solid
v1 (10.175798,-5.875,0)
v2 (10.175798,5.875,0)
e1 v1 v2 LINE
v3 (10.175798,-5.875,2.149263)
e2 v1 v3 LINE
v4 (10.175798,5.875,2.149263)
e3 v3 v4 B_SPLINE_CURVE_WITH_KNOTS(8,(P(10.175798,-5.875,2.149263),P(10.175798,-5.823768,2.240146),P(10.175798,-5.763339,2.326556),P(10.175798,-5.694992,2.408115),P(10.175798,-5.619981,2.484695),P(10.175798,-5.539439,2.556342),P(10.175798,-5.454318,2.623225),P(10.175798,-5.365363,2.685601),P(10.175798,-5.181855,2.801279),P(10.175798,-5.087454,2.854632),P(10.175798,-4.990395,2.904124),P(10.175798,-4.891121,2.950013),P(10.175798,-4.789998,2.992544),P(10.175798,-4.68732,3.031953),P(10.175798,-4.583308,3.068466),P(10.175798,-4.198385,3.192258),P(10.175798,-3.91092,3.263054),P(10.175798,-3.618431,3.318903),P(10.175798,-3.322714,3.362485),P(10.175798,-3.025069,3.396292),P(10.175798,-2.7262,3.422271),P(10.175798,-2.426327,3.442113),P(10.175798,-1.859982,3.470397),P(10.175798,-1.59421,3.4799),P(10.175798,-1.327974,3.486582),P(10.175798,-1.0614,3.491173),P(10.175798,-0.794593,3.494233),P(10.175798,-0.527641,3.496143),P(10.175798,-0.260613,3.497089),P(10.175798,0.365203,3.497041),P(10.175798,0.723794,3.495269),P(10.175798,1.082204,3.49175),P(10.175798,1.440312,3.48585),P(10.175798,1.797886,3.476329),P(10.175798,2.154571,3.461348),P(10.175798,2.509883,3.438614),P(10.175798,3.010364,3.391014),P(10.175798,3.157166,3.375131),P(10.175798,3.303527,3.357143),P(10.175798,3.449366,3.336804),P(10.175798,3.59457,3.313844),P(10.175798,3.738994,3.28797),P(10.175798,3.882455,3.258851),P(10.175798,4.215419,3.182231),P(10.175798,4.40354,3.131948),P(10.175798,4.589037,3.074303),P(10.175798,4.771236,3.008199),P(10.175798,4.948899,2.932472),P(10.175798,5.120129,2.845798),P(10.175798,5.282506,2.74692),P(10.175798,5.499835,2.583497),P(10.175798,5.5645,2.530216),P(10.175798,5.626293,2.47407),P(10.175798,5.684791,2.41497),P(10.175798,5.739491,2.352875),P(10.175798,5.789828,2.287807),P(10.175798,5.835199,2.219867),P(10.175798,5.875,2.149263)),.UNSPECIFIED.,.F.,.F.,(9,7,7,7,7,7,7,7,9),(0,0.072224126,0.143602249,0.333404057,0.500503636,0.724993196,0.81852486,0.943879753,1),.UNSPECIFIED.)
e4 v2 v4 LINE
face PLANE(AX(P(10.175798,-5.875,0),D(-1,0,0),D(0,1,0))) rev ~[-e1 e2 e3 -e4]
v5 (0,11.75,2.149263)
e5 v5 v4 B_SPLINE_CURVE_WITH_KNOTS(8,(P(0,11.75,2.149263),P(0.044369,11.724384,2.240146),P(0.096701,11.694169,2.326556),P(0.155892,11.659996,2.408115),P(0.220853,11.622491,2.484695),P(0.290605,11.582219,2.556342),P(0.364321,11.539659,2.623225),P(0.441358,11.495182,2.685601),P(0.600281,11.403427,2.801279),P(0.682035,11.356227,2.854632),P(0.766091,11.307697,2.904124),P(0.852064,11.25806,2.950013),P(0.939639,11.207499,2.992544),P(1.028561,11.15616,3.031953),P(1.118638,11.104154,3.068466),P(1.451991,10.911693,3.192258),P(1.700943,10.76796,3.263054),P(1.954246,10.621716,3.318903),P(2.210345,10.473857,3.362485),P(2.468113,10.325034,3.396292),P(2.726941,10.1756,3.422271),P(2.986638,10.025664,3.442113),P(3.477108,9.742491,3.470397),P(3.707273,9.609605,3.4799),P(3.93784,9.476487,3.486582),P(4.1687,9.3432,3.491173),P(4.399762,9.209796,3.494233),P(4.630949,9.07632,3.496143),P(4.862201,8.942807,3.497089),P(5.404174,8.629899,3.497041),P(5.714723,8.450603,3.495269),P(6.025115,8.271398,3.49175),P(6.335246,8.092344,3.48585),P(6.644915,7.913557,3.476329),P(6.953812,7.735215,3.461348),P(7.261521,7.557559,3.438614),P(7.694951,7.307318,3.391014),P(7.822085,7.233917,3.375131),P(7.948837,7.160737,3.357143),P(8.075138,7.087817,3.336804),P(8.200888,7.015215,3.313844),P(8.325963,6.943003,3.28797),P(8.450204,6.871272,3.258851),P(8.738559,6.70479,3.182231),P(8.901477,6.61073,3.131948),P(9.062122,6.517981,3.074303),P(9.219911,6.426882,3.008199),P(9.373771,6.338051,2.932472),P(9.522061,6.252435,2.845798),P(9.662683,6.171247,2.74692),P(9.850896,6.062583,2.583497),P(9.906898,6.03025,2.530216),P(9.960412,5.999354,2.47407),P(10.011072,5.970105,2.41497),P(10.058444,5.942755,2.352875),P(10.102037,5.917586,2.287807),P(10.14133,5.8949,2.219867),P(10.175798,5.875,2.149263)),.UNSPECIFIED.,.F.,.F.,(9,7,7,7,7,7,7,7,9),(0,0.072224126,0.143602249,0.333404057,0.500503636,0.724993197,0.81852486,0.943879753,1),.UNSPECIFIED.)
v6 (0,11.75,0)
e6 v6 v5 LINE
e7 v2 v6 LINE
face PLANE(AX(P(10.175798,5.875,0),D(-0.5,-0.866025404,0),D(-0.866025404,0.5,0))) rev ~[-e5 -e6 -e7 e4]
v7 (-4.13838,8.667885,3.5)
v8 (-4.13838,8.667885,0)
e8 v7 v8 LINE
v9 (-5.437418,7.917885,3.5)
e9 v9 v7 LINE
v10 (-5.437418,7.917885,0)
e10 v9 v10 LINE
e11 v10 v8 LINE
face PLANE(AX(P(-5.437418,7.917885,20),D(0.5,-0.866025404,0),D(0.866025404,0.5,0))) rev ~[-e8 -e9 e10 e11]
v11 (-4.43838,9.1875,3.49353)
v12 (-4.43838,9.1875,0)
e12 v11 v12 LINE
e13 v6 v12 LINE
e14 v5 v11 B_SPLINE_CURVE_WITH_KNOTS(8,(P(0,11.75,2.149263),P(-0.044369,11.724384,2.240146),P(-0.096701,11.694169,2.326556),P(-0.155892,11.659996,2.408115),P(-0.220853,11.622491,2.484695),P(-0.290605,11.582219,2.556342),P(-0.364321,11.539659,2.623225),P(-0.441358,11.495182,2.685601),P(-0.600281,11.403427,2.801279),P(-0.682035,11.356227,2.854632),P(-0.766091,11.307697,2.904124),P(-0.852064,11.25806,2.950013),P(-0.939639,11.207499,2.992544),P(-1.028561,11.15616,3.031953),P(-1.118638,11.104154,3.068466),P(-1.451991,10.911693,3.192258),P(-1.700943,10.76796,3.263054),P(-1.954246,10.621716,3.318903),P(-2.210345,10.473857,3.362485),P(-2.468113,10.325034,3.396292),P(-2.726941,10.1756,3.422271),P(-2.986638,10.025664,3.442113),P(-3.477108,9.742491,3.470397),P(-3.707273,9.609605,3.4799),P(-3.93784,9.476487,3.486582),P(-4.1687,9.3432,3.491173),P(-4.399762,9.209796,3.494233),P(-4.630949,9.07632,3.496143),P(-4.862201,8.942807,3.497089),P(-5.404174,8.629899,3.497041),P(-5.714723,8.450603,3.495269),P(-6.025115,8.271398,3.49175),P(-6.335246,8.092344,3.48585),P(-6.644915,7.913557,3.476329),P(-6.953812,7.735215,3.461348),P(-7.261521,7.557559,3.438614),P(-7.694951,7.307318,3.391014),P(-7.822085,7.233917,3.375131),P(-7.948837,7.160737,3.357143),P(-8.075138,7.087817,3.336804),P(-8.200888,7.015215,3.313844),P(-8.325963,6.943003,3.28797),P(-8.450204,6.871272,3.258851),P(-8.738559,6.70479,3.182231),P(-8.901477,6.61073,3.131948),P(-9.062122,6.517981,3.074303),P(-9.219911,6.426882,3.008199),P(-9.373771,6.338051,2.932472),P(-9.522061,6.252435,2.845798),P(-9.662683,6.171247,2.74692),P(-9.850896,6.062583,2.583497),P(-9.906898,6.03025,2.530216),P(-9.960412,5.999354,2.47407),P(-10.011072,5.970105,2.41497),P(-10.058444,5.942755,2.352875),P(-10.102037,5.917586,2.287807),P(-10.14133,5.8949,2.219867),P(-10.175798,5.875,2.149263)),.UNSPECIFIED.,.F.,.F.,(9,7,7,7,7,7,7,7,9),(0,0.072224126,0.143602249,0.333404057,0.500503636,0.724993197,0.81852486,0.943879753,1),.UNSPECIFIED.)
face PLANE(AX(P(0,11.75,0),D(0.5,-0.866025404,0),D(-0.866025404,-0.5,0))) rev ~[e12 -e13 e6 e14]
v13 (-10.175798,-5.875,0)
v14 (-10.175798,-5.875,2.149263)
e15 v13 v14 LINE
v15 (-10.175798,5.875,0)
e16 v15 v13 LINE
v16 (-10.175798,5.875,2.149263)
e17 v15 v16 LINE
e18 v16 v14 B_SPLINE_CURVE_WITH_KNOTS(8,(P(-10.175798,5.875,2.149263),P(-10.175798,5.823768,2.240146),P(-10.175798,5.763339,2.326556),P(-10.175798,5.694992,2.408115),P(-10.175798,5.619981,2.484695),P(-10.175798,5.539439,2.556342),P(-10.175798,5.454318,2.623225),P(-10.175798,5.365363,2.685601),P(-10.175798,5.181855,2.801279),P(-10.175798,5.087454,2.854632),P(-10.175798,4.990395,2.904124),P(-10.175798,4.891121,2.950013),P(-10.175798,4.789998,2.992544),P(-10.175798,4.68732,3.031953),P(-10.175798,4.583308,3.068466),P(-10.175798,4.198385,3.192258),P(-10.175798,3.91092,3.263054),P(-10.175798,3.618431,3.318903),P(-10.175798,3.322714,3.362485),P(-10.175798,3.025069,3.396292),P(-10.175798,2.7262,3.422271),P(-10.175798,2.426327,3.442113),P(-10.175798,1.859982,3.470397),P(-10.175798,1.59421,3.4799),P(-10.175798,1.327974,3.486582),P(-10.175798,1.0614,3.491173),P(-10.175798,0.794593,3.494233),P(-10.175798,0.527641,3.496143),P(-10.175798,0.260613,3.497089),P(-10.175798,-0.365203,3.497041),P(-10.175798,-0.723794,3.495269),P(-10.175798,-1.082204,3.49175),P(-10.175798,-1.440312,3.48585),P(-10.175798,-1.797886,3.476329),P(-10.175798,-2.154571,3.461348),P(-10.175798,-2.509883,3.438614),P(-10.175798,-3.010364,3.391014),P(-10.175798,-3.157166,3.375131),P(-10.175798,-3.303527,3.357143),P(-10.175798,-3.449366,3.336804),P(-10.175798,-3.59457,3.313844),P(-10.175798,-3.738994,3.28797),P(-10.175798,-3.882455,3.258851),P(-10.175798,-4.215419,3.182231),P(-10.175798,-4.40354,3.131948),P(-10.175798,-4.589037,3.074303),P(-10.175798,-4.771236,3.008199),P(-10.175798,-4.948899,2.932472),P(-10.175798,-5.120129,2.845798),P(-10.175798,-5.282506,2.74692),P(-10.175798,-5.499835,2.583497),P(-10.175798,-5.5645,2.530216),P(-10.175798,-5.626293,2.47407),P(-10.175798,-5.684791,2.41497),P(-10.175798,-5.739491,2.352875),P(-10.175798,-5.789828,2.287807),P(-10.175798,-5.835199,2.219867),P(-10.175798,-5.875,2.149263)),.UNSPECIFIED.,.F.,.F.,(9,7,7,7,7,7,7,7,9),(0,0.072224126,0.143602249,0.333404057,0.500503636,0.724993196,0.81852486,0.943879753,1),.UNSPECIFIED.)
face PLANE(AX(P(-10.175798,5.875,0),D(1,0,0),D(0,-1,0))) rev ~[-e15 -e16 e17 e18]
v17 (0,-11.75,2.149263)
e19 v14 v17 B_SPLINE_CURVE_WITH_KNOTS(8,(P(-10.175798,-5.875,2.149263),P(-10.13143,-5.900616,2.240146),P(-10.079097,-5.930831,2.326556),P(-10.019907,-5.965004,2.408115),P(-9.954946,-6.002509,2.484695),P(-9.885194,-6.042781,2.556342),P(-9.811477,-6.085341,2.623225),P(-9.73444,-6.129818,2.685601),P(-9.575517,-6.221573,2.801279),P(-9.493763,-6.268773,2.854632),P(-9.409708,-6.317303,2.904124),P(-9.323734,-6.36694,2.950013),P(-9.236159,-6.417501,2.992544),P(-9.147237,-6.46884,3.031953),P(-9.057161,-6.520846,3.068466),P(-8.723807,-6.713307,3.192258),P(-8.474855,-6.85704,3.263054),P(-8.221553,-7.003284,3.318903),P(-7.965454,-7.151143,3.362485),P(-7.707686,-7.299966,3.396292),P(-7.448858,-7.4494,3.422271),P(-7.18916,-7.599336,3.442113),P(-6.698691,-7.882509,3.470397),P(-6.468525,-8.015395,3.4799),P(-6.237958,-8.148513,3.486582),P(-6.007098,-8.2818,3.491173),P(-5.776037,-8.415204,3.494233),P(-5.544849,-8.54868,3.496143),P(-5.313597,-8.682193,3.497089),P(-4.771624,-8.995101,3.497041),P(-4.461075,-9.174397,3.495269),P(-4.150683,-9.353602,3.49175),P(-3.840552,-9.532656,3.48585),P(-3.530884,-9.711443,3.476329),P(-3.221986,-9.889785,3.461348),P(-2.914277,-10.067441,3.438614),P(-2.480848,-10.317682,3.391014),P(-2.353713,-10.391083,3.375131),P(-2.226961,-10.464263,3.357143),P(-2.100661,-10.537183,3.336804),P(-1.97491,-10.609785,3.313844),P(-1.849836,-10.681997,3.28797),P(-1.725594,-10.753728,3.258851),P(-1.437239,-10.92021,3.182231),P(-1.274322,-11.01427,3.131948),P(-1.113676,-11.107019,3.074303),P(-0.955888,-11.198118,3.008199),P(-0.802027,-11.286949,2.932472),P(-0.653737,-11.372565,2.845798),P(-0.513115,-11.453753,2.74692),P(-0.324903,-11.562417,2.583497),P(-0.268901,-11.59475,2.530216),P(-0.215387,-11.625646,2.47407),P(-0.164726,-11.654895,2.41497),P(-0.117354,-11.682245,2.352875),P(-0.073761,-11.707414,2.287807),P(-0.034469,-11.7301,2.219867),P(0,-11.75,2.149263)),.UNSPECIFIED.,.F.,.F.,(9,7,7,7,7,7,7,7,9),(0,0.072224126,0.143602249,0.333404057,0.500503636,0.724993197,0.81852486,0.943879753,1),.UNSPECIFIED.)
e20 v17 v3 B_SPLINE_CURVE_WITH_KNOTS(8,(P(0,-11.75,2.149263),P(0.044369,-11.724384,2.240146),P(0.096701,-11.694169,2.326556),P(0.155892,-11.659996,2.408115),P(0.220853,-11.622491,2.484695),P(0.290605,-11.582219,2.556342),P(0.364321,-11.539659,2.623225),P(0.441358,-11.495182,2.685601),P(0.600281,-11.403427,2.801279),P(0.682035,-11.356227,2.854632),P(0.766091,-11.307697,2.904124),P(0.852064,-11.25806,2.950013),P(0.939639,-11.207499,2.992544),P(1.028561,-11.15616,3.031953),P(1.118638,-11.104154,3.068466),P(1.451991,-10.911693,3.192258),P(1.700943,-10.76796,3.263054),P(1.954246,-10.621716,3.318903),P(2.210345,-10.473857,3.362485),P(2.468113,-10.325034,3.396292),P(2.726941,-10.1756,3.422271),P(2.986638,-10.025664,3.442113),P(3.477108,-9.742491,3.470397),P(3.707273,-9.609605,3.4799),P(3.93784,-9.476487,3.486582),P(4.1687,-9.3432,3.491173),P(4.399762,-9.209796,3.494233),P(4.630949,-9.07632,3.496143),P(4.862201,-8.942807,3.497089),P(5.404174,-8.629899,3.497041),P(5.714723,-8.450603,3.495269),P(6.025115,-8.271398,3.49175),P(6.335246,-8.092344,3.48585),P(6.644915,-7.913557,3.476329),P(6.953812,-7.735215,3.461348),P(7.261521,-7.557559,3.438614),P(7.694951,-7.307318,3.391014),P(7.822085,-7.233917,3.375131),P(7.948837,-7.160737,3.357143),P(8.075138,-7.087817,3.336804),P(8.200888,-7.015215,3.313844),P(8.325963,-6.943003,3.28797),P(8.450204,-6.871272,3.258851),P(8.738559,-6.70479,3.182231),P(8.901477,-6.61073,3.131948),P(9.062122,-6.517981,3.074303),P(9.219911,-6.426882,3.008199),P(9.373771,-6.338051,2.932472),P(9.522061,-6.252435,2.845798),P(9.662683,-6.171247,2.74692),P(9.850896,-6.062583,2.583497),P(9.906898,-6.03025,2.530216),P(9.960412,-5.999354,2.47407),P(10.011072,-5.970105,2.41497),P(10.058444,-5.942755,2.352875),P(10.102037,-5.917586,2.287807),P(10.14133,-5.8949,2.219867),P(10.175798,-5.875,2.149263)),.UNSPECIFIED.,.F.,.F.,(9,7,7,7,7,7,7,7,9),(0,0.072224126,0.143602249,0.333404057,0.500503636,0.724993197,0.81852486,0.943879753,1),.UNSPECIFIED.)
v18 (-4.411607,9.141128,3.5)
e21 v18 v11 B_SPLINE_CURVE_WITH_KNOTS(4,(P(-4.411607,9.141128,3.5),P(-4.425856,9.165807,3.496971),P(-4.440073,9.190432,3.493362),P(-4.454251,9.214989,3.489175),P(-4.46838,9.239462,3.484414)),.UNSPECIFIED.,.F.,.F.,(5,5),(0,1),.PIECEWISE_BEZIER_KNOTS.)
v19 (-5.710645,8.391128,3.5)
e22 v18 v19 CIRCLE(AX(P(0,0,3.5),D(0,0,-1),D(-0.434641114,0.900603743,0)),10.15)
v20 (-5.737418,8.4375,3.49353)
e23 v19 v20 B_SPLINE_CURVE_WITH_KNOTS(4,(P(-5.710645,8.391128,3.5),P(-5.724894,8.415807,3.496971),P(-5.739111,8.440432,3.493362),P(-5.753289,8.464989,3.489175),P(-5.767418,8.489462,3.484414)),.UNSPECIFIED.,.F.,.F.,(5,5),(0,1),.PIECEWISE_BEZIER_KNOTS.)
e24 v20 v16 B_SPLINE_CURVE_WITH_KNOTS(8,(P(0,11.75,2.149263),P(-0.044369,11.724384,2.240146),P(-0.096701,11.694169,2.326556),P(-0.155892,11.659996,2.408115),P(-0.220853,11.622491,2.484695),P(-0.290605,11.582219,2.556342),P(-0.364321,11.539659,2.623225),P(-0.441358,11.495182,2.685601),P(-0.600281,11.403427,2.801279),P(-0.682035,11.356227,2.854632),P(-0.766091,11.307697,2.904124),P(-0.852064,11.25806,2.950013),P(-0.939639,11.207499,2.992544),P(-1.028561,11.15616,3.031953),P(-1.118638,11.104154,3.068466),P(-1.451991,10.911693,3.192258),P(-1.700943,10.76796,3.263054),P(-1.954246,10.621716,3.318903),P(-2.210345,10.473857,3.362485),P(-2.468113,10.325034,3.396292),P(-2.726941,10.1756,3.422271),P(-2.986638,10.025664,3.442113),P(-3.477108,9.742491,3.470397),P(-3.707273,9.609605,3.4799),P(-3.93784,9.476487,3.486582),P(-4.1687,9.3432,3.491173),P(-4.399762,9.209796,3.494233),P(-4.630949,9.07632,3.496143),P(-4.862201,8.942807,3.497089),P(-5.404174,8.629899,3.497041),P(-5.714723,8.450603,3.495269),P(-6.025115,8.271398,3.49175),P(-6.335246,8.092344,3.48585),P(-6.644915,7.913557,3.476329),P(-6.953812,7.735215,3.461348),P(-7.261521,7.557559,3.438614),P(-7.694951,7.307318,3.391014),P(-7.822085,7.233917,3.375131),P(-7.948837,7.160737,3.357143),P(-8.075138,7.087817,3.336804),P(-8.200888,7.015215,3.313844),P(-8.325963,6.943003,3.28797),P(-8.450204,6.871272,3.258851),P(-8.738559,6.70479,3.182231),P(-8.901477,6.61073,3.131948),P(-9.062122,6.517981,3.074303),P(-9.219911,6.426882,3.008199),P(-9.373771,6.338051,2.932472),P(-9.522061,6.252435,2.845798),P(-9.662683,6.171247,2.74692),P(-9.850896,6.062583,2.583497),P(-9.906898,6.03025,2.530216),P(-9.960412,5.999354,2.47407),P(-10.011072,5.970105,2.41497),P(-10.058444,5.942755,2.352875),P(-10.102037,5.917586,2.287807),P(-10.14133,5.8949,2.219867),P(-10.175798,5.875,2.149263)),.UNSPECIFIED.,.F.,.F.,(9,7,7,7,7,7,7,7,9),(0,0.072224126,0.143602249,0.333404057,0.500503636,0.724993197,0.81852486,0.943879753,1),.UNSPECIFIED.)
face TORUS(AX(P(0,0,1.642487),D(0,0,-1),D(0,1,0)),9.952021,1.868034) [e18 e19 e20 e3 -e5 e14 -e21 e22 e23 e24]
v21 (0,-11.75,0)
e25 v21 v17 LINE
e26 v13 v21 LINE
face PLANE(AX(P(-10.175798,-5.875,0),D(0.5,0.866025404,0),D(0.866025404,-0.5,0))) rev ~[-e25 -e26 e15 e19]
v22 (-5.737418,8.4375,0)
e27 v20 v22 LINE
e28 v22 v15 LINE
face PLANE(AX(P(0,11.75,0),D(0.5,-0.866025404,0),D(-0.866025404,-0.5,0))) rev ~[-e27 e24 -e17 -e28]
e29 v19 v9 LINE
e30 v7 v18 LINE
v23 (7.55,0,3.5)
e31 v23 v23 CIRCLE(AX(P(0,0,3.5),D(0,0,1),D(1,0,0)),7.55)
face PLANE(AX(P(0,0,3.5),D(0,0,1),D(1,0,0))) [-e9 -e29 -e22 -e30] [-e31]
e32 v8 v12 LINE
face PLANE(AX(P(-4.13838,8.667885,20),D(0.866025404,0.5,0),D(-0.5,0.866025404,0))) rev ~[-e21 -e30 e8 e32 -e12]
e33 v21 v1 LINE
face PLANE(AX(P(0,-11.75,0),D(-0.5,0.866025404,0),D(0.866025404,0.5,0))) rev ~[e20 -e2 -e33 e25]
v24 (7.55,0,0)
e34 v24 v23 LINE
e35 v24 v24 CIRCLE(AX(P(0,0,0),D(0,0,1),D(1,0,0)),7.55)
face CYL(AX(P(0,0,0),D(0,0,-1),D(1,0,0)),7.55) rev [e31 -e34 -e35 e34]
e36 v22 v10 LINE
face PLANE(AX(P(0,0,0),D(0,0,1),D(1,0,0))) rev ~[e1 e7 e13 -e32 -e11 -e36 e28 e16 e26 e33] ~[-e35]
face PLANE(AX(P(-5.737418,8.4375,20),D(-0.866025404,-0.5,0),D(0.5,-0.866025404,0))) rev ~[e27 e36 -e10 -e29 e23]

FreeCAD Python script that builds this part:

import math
import FreeCAD as App
import Part
import Sketcher

V = App.Vector
Q = App.Units.Quantity

doc = App.newDocument("Part")
body = doc.addObject("PartDesign::Body", "Body")

# Sketch on XY plane
sketch1 = body.newObject("Sketcher::SketchObject", "Sketch")
sketch1.AttachmentSupport = (doc.getObject("XY_Plane"), [""])
sketch1.MapMode = "FlatFace"
sketch1.addGeometry(Part.LineSegment(V(0, 12, 0), V(-10, 6, 0)), False)
sketch1.addGeometry(Part.LineSegment(V(-10, 6, 0), V(-10, -6, 0)), False)
sketch1.addGeometry(Part.LineSegment(V(-10, -6, 0), V(0, -12, 0)), False)
sketch1.addGeometry(Part.LineSegment(V(0, -12, 0), V(10, -6, 0)), False)
sketch1.addGeometry(Part.LineSegment(V(10, -6, 0), V(10, 6, 0)), False)
sketch1.addGeometry(Part.LineSegment(V(10, 6, 0), V(0, 12, 0)), False)
sketch1.addGeometry(Part.Circle(V(0, 0, 0), V(0, 0, 1), 8), False)
sketch1.addConstraint(Sketcher.Constraint("Coincident", 0, 2, 1, 1))
sketch1.addConstraint(Sketcher.Constraint("Coincident", 1, 2, 2, 1))
sketch1.addConstraint(Sketcher.Constraint("Coincident", 2, 2, 3, 1))
sketch1.addConstraint(Sketcher.Constraint("Coincident", 3, 2, 4, 1))
sketch1.addConstraint(Sketcher.Constraint("Coincident", 4, 2, 5, 1))
sketch1.addConstraint(Sketcher.Constraint("Coincident", 5, 2, 0, 1))
sketch1.addConstraint(Sketcher.Constraint("Vertical", 1))
sketch1.addConstraint(Sketcher.Constraint("Vertical", 4))
sketch1.addConstraint(Sketcher.Constraint("Coincident", 6, 3, -1, 1))
sketch1.addConstraint(Sketcher.Constraint("Symmetric", 0, 2, 3, 2, -1, 1))
sketch1.addConstraint(Sketcher.Constraint("Symmetric", 2, 2, 5, 2, -1, 1))
sketch1.addConstraint(Sketcher.Constraint("PointOnObject", 2, 2, -2))
sketch1.addConstraint(Sketcher.Constraint("Parallel", 2, 5))
sketch1.addConstraint(Sketcher.Constraint("Horizontal", 1, 2, 3, 2))
sketch1.addConstraint(Sketcher.Constraint("Diameter", 6, 15.1))
sketch1.addConstraint(Sketcher.Constraint("Angle", 0, Q("-150 deg")))
sketch1.addConstraint(Sketcher.Constraint("DistanceY", 1, 2, 1, 1, 11.75))
sketch1.addConstraint(Sketcher.Constraint("Distance", 0, 11.75))
pad1 = body.newObject("PartDesign::Pad", "Pad")
pad1.Profile = sketch1
pad1.Length = 3.5

# Sketch on YZ plane
sketch2 = body.newObject("Sketcher::SketchObject", "Sketch001")
sketch2.AttachmentSupport = (doc.getObject("YZ_Plane"), [""])
sketch2.MapMode = "FlatFace"
sketch2.addGeometry(Part.LineSegment(V(11.8, 2.1, 0), V(11.8, 3.5, 0)), False)
sketch2.addGeometry(Part.LineSegment(V(11.8, 3.5, 0), V(10.2, 3.5, 0)), False)
sketch2.addGeometry(Part.ArcOfCircle(Part.Circle(V(10, 1.6, 0), V(0, 0, 1), 1.9), math.radians(16), math.radians(84)), False)
sketch2.addConstraint(Sketcher.Constraint("Coincident", 0, 2, 1, 1))
sketch2.addConstraint(Sketcher.Constraint("Coincident", 1, 2, 2, 2))
sketch2.addConstraint(Sketcher.Constraint("Coincident", 2, 1, 0, 1))
sketch2.addConstraint(Sketcher.Constraint("Vertical", 0))
sketch2.addConstraint(Sketcher.Constraint("Horizontal", 1))
sketch2.addConstraint(Sketcher.Constraint("DistanceX", 1, 2, 1, 1, 1.6))
sketch2.addConstraint(Sketcher.Constraint("DistanceY", -1, 1, 0, 2, 3.5))
sketch2.addConstraint(Sketcher.Constraint("DistanceX", -1, 1, 0, 2, 11.75))
sketch2.addConstraint(Sketcher.Constraint("Radius", 2, 1.868034))
sketch2.addConstraint(Sketcher.Constraint("DistanceY", 0, 1, 0, 2, 1.350737))
groove = body.newObject("PartDesign::Groove", "Groove")
groove.Profile = sketch2
groove.ReferenceAxis = (sketch2, ["V_Axis"])
groove.Angle = 360

# Sketch on XY plane
sketch3 = body.newObject("Sketcher::SketchObject", "Sketch002")
sketch3.AttachmentSupport = (doc.getObject("XY_Plane"), [""])
sketch3.MapMode = "FlatFace"
sketch3.AttachmentOffset = App.Placement(V(0, 0, 20), App.Rotation())
sketch3.addGeometry(Part.LineSegment(V(-4.4, 9.2, 0), V(-5.7, 8.4, 0)), False)
sketch3.addGeometry(Part.LineSegment(V(-5.7, 8.4, 0), V(-5.4, 7.9, 0)), False)
sketch3.addGeometry(Part.LineSegment(V(-5.4, 7.9, 0), V(-4.1, 8.7, 0)), False)
sketch3.addGeometry(Part.LineSegment(V(-4.1, 8.7, 0), V(-4.4, 9.2, 0)), False)
sketch3.addConstraint(Sketcher.Constraint("Coincident", 0, 2, 1, 1))
sketch3.addConstraint(Sketcher.Constraint("Coincident", 1, 2, 2, 1))
sketch3.addConstraint(Sketcher.Constraint("Coincident", 2, 2, 3, 1))
sketch3.addConstraint(Sketcher.Constraint("Coincident", 3, 2, 0, 1))
sketch3.addConstraint(Sketcher.Constraint("Perpendicular", 0, 1))
sketch3.addConstraint(Sketcher.Constraint("Perpendicular", 1, 2))
sketch3.addConstraint(Sketcher.Constraint("Perpendicular", 2, 3))
sketch3.addConstraint(Sketcher.Constraint("Angle", 0, Q("-150 deg")))
sketch3.addConstraint(Sketcher.Constraint("Distance", 0, 1.5))
sketch3.addConstraint(Sketcher.Constraint("Distance", 1, 0.6))
sketch3.addConstraint(Sketcher.Constraint("DistanceY", -1, 1, 0, 2, 8.4375))
sketch3.addConstraint(Sketcher.Constraint("DistanceX", 0, 2, -1, 1, 5.737418))
pocket1 = body.newObject("PartDesign::Pocket", "Pocket")
pocket1.Profile = sketch3
pocket1.Length = 27.5

doc.recompute()
